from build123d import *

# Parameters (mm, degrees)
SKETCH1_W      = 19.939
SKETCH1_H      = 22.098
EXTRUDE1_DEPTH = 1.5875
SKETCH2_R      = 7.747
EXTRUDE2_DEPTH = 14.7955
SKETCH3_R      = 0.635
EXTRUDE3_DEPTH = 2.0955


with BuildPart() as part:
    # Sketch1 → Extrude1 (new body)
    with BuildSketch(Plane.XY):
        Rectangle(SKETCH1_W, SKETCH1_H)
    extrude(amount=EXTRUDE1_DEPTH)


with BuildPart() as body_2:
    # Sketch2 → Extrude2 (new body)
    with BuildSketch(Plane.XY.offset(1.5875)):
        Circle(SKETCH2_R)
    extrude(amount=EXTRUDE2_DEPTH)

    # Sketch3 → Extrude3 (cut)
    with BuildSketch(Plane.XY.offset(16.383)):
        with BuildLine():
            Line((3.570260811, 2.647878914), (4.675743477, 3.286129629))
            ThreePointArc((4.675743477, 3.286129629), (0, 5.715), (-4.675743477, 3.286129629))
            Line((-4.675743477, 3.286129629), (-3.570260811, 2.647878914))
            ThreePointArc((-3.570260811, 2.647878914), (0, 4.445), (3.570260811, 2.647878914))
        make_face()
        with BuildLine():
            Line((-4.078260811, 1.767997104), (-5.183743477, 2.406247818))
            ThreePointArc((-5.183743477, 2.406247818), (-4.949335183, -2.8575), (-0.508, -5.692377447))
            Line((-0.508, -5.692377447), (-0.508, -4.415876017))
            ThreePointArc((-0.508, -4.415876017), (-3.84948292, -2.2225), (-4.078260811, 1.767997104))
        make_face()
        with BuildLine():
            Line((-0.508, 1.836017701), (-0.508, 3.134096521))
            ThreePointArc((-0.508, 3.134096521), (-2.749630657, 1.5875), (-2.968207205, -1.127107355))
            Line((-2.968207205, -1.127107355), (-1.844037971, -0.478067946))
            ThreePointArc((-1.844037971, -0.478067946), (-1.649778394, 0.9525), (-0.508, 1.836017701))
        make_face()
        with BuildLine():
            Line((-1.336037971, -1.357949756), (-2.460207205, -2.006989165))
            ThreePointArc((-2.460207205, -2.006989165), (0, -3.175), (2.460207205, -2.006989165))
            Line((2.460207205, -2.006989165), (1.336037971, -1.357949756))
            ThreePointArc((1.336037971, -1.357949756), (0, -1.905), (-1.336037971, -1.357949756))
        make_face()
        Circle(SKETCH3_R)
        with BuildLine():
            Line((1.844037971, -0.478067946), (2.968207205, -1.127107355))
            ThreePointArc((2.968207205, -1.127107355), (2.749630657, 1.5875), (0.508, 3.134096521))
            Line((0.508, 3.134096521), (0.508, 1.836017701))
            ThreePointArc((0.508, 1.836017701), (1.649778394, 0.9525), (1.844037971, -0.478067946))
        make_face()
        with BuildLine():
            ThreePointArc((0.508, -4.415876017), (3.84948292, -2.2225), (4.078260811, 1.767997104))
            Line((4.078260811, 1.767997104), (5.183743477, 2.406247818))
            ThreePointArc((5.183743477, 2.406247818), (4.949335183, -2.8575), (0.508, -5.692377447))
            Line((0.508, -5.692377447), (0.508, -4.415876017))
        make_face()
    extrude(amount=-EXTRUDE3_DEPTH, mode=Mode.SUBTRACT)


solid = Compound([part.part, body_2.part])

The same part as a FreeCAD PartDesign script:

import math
import FreeCAD as App
import Part
import Sketcher
Q = App.Units.Quantity


def add_polygon(sketch, points):
    """Adds a closed chain of lines whose ends are joined by coincident constraints."""
    first, n = sketch.GeometryCount, len(points)
    for a, b in zip(points, points[1:] + points[:1]):
        sketch.addGeometry(Part.LineSegment(App.Vector(*a, 0), App.Vector(*b, 0)), False)
    for i in range(n):
        sketch.addConstraint(Sketcher.Constraint("Coincident", first + i, 2, first + (i + 1) % n, 1))

doc = App.newDocument("Part")
params = doc.addObject("Spreadsheet::Sheet", "Params")
for row, (alias, value) in enumerate([
    ("sketch1_height", "0.87 in"),
    ("sketch1_width", "0.785 in"),
    ("pad1_length", "0.0625 in"),
    ("sketch2_diameter", "0.61 in"),
    ("pad2_length", "0.5825 in"),
    ("sketch3_diameter", "0.05 in"),
    ("sketch3_radius", "0.225 in"),
    ("sketch3_radius2", "0.175 in"),
    ("sketch3_radius3", "0.125 in"),
    ("sketch3_radius4", "0.075 in"),
    ("pocket1_length", "0.0825 in"),
], start=1):
    params.set(f"A{row}", alias)
    params.set(f"B{row}", "=" + value)
    params.setAlias(f"B{row}", alias)

body = doc.addObject("PartDesign::Body", "Body")

# Sketch on XY plane
sketch1 = body.newObject("Sketcher::SketchObject", "Sketch")
sketch1.AttachmentSupport = (doc.getObject("XY_Plane"), [""])
sketch1.MapMode = "FlatFace"
add_polygon(sketch1, [(-10, 11), (-10, -11), (10, -11), (10, 11)])  # lines 0-3
sketch1.addConstraint(Sketcher.Constraint("Vertical", 0))
sketch1.addConstraint(Sketcher.Constraint("Horizontal", 1))
sketch1.addConstraint(Sketcher.Constraint("Vertical", 2))
sketch1.addConstraint(Sketcher.Constraint("Horizontal", 3))
sketch1.addConstraint(Sketcher.Constraint("Symmetric", 0, 2, 2, 2, -1, 1))
sketch1.addConstraint(Sketcher.Constraint("DistanceY", 0, 2, 0, 1, Q("0.87 in")))
sketch1.addConstraint(Sketcher.Constraint("DistanceX", 1, 1, 1, 2, Q("0.785 in")))
sketch1.setExpression("Constraints[9]", "Params.sketch1_height")
sketch1.setExpression("Constraints[10]", "Params.sketch1_width")
pad1 = body.newObject("PartDesign::Pad", "Pad")
pad1.Profile = sketch1
pad1.setExpression("Length", "Params.pad1_length")
body2 = doc.addObject("PartDesign::Body", "Body001")

# Sketch on XY plane
sketch2 = body2.newObject("Sketcher::SketchObject", "Sketch001")
sketch2.AttachmentSupport = (doc.getObject("XY_Plane001"), [""])
sketch2.MapMode = "FlatFace"
sketch2.AttachmentOffset = App.Placement(App.Vector(0, 0, 0.0625 * 25.4), App.Rotation())
sketch2.addGeometry(Part.Circle(App.Vector(0, 0, 0), App.Vector(0, 0, 1), 8), False)
sketch2.addConstraint(Sketcher.Constraint("Coincident", 0, 3, -1, 1))
sketch2.addConstraint(Sketcher.Constraint("Diameter", 0, Q("0.61 in")))
sketch2.setExpression("Constraints[1]", "Params.sketch2_diameter")
pad2 = body2.newObject("PartDesign::Pad", "Pad001")
pad2.Profile = sketch2
pad2.setExpression("Length", "Params.pad2_length")

# Sketch on XY plane
sketch3 = body2.newObject("Sketcher::SketchObject", "Sketch002")
sketch3.AttachmentSupport = (doc.getObject("XY_Plane001"), [""])
sketch3.MapMode = "FlatFace"
sketch3.AttachmentOffset = App.Placement(App.Vector(0, 0, 0.645 * 25.4), App.Rotation())
sketch3.addGeometry(Part.LineSegment(App.Vector(3.6, 2.6, 0), App.Vector(4.7, 3.3, 0)), False)
sketch3.addGeometry(Part.ArcOfCircle(Part.Circle(App.Vector(0, 0, 0), App.Vector(0, 0, 1), 5.7), math.radians(35), math.radians(145)), False)
sketch3.addGeometry(Part.LineSegment(App.Vector(-4.7, 3.3, 0), App.Vector(-3.6, 2.6, 0)), False)
sketch3.addGeometry(Part.ArcOfCircle(Part.Circle(App.Vector(0, 0, 0), App.Vector(0, 0, 1), 4.4), math.radians(37), math.radians(143)), False)
sketch3.addGeometry(Part.LineSegment(App.Vector(-4.1, 1.8, 0), App.Vector(-5.2, 2.4, 0)), False)
sketch3.addGeometry(Part.ArcOfCircle(Part.Circle(App.Vector(0, 0, 0), App.Vector(0, 0, 1), 5.7), math.radians(155), math.radians(265)), False)
sketch3.addGeometry(Part.LineSegment(App.Vector(-0.5, -5.7, 0), App.Vector(-0.5, -4.4, 0)), False)
sketch3.addGeometry(Part.ArcOfCircle(Part.Circle(App.Vector(0, 0, 0), App.Vector(0, 0, 1), 4.4), math.radians(157), math.radians(263)), False)
sketch3.addGeometry(Part.LineSegment(App.Vector(-0.5, 1.8, 0), App.Vector(-0.5, 3.1, 0)), False)
sketch3.addGeometry(Part.ArcOfCircle(Part.Circle(App.Vector(0, 0, 0), App.Vector(0, 0, 1), 3.2), math.radians(99), math.radians(201)), False)
sketch3.addGeometry(Part.LineSegment(App.Vector(-3, -1.1, 0), App.Vector(-1.8, -0.5, 0)), False)
sketch3.addGeometry(Part.ArcOfCircle(Part.Circle(App.Vector(0, 0, 0), App.Vector(0, 0, 1), 1.9), math.radians(105), math.radians(195)), False)
sketch3.addGeometry(Part.LineSegment(App.Vector(-1.3, -1.4, 0), App.Vector(-2.5, -2, 0)), False)
sketch3.addGeometry(Part.ArcOfCircle(Part.Circle(App.Vector(0, 0, 0), App.Vector(0, 0, 1), 3.2), math.radians(-141), math.radians(-39)), False)
sketch3.addGeometry(Part.LineSegment(App.Vector(2.5, -2, 0), App.Vector(1.3, -1.4, 0)), False)
sketch3.addGeometry(Part.ArcOfCircle(Part.Circle(App.Vector(0, 0, 0), App.Vector(0, 0, 1), 1.9), math.radians(-135), math.radians(-45)), False)
sketch3.addGeometry(Part.Circle(App.Vector(0, 0, 0), App.Vector(0, 0, 1), 0.6), False)
sketch3.addGeometry(Part.LineSegment(App.Vector(1.8, -0.5, 0), App.Vector(3, -1.1, 0)), False)
sketch3.addGeometry(Part.ArcOfCircle(Part.Circle(App.Vector(0, 0, 0), App.Vector(0, 0, 1), 3.2), math.radians(-21), math.radians(81)), False)
sketch3.addGeometry(Part.LineSegment(App.Vector(0.5, 3.1, 0), App.Vector(0.5, 1.8, 0)), False)
sketch3.addGeometry(Part.ArcOfCircle(Part.Circle(App.Vector(0, 0, 0), App.Vector(0, 0, 1), 1.9), math.radians(-15), math.radians(75)), False)
sketch3.addGeometry(Part.ArcOfCircle(Part.Circle(App.Vector(0, 0, 0), App.Vector(0, 0, 1), 4.4), math.radians(-83), math.radians(23)), False)
sketch3.addGeometry(Part.LineSegment(App.Vector(0.5, -4.4, 0), App.Vector(0.5, -5.7, 0)), False)
sketch3.addGeometry(Part.ArcOfCircle(Part.Circle(App.Vector(0, 0, 0), App.Vector(0, 0, 1), 5.7), math.radians(-85), math.radians(25)), False)
sketch3.addGeometry(Part.LineSegment(App.Vector(5.2, 2.4, 0), App.Vector(4.1, 1.8, 0)), False)
sketch3.addConstraint(Sketcher.Constraint("Coincident", 0, 2, 1, 1))
sketch3.addConstraint(Sketcher.Constraint("Coincident", 1, 2, 2, 1))
sketch3.addConstraint(Sketcher.Constraint("Coincident", 2, 2, 3, 2))
sketch3.addConstraint(Sketcher.Constraint("Coincident", 3, 1, 0, 1))
sketch3.addConstraint(Sketcher.Constraint("Coincident", 4, 2, 5, 1))
sketch3.addConstraint(Sketcher.Constraint("Coincident", 5, 2, 6, 1))
sketch3.addConstraint(Sketcher.Constraint("Coincident", 6, 2, 7, 2))
sketch3.addConstraint(Sketcher.Constraint("Coincident", 7, 1, 4, 1))
sketch3.addConstraint(Sketcher.Constraint("Coincident", 8, 2, 9, 1))
sketch3.addConstraint(Sketcher.Constraint("Coincident", 9, 2, 10, 1))
sketch3.addConstraint(Sketcher.Constraint("Coincident", 10, 2, 11, 2))
sketch3.addConstraint(Sketcher.Constraint("Coincident", 11, 1, 8, 1))
sketch3.addConstraint(Sketcher.Constraint("Coincident", 12, 2, 13, 1))
sketch3.addConstraint(Sketcher.Constraint("Coincident", 13, 2, 14, 1))
sketch3.addConstraint(Sketcher.Constraint("Coincident", 14, 2, 15, 2))
sketch3.addConstraint(Sketcher.Constraint("Coincident", 15, 1, 12, 1))
sketch3.addConstraint(Sketcher.Constraint("Coincident", 17, 2, 18, 1))
sketch3.addConstraint(Sketcher.Constraint("Coincident", 18, 2, 19, 1))
sketch3.addConstraint(Sketcher.Constraint("Coincident", 19, 2, 20, 2))
sketch3.addConstraint(Sketcher.Constraint("Coincident", 20, 1, 17, 1))
sketch3.addConstraint(Sketcher.Constraint("Coincident", 21, 1, 22, 1))
sketch3.addConstraint(Sketcher.Constraint("Coincident", 22, 2, 23, 1))
sketch3.addConstraint(Sketcher.Constraint("Coincident", 23, 2, 24, 1))
sketch3.addConstraint(Sketcher.Constraint("Coincident", 24, 2, 21, 2))
sketch3.addConstraint(Sketcher.Constraint("Vertical", 6))
sketch3.addConstraint(Sketcher.Constraint("Vertical", 8))
sketch3.addConstraint(Sketcher.Constraint("Vertical", 19))
sketch3.addConstraint(Sketcher.Constraint("Vertical", 22))
sketch3.addConstraint(Sketcher.Constraint("Coincident", 1, 3, -1, 1))
sketch3.addConstraint(Sketcher.Constraint("Coincident", 3, 3, -1, 1))
sketch3.addConstraint(Sketcher.Constraint("Coincident", 5, 3, -1, 1))
sketch3.addConstraint(Sketcher.Constraint("Coincident", 7, 3, -1, 1))
sketch3.addConstraint(Sketcher.Constraint("Coincident", 9, 3, -1, 1))
sketch3.addConstraint(Sketcher.Constraint("Coincident", 11, 3, -1, 1))
sketch3.addConstraint(Sketcher.Constraint("Coincident", 13, 3, -1, 1))
sketch3.addConstraint(Sketcher.Constraint("Coincident", 15, 3, -1, 1))
sketch3.addConstraint(Sketcher.Constraint("Coincident", 16, 3, -1, 1))
sketch3.addConstraint(Sketcher.Constraint("Coincident", 18, 3, -1, 1))
sketch3.addConstraint(Sketcher.Constraint("Coincident", 20, 3, -1, 1))
sketch3.addConstraint(Sketcher.Constraint("Coincident", 21, 3, -1, 1))
sketch3.addConstraint(Sketcher.Constraint("Coincident", 23, 3, -1, 1))
sketch3.addConstraint(Sketcher.Constraint("Equal", 1, 5))
sketch3.addConstraint(Sketcher.Constraint("Equal", 3, 7))
sketch3.addConstraint(Sketcher.Constraint("Equal", 9, 13))
sketch3.addConstraint(Sketcher.Constraint("Equal", 11, 15))
sketch3.addConstraint(Sketcher.Constraint("Equal", 13, 18))
sketch3.addConstraint(Sketcher.Constraint("Equal", 15, 20))
sketch3.addConstraint(Sketcher.Constraint("Equal", 7, 21))
sketch3.addConstraint(Sketcher.Constraint("Equal", 5, 23))
sketch3.addConstraint(Sketcher.Constraint("Parallel", 2, 4))
sketch3.addConstraint(Sketcher.Constraint("Parallel", 0, 10))
sketch3.addConstraint(Sketcher.Constraint("Parallel", 10, 12))
sketch3.addConstraint(Sketcher.Constraint("Parallel", 4, 14))
sketch3.addConstraint(Sketcher.Constraint("Parallel", 14, 17))
sketch3.addConstraint(Sketcher.Constraint("Parallel", 12, 24))
sketch3.addConstraint(Sketcher.Constraint("Horizontal", 0, 2, 1, 2))
sketch3.addConstraint(Sketcher.Constraint("Horizontal", 2, 2, 3, 1))
sketch3.addConstraint(Sketcher.Constraint("Horizontal", 12, 2, 13, 2))
sketch3.addConstraint(Sketcher.Constraint("Horizontal", 9, 2, 17, 2))
sketch3.addConstraint(Sketcher.Constraint("Horizontal", 8, 2, 18, 2))
sketch3.addConstraint(Sketcher.Constraint("Horizontal", 6, 2, 21, 1))
sketch3.addConstraint(Sketcher.Constraint("Horizontal", 4, 2, 23, 2))
sketch3.addConstraint(Sketcher.Constraint("Vertical", 6, 2, 8, 2))
sketch3.addConstraint(Sketcher.Constraint("Equal", 2, 4))
sketch3.addConstraint(Sketcher.Constraint("Equal", 10, 12))
sketch3.addConstraint(Sketcher.Constraint("Diameter", 16, Q("0.05 in")))
sketch3.addConstraint(Sketcher.Constraint("Angle", 0, Q("30 deg")))
sketch3.addConstraint(Sketcher.Constraint("Radius", 1, Q("0.225 in")))
sketch3.addConstraint(Sketcher.Constraint("Radius", 3, Q("0.175 in")))
sketch3.addConstraint(Sketcher.Constraint("Radius", 9, Q("0.125 in")))
sketch3.addConstraint(Sketcher.Constraint("Radius", 11, Q("0.075 in")))
sketch3.addConstraint(Sketcher.Constraint("DistanceX", 5, 2, -1, 1, Q("0.02 in")))
sketch3.addConstraint(Sketcher.Constraint("DistanceX", 4, 2, 1, 2, Q("0.02 in")))
sketch3.addConstraint(Sketcher.Constraint("DistanceX", 9, 2, 12, 2, Q("0.02 in")))
sketch3.setExpression("Constraints[65]", "Params.sketch3_diameter")
sketch3.setExpression("Constraints[67]", "Params.sketch3_radius")
sketch3.setExpression("Constraints[68]", "Params.sketch3_radius2")
sketch3.setExpression("Constraints[69]", "Params.sketch3_radius3")
sketch3.setExpression("Constraints[70]", "Params.sketch3_radius4")
pocket1 = body2.newObject("PartDesign::Pocket", "Pocket")
pocket1.Profile = sketch3
pocket1.setExpression("Length", "Params.pocket1_length")

doc.recompute()
